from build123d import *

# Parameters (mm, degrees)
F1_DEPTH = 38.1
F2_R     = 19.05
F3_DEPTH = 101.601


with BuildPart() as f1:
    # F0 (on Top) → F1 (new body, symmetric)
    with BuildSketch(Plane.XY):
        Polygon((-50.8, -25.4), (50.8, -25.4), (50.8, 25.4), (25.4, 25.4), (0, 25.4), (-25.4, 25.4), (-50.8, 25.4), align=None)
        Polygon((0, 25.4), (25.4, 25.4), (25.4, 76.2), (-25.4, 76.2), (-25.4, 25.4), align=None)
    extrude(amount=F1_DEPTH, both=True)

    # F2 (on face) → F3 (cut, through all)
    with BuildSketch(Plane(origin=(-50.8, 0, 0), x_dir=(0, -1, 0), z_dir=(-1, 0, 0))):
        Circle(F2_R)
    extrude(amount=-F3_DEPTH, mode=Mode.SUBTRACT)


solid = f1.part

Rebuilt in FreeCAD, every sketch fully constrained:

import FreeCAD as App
import Part
import Sketcher

V = App.Vector
Q = App.Units.Quantity

doc = App.newDocument("Part")
body = doc.addObject("PartDesign::Body", "Body")

sketch1 = body.newObject("Sketcher::SketchObject", "Sketch")
sketch1.AttachmentSupport = (doc.getObject("XY_Plane"), [""])
sketch1.MapMode = "FlatFace"
sketch1.addGeometry(Part.LineSegment(V(-51, -25, 0), V(51, -25, 0)), False)
sketch1.addGeometry(Part.LineSegment(V(51, -25, 0), V(51, 25, 0)), False)
sketch1.addGeometry(Part.LineSegment(V(51, 25, 0), V(25, 25, 0)), False)
sketch1.addGeometry(Part.LineSegment(V(25, 25, 0), V(25, 76, 0)), False)
sketch1.addGeometry(Part.LineSegment(V(25, 76, 0), V(-25, 76, 0)), False)
sketch1.addGeometry(Part.LineSegment(V(-25, 76, 0), V(-25, 25, 0)), False)
sketch1.addGeometry(Part.LineSegment(V(-25, 25, 0), V(-51, 25, 0)), False)
sketch1.addGeometry(Part.LineSegment(V(-51, 25, 0), V(-51, -25, 0)), False)
sketch1.addConstraint(Sketcher.Constraint("Coincident", 0, 2, 1, 1))
sketch1.addConstraint(Sketcher.Constraint("Coincident", 1, 2, 2, 1))
sketch1.addConstraint(Sketcher.Constraint("Coincident", 2, 2, 3, 1))
sketch1.addConstraint(Sketcher.Constraint("Coincident", 3, 2, 4, 1))
sketch1.addConstraint(Sketcher.Constraint("Coincident", 4, 2, 5, 1))
sketch1.addConstraint(Sketcher.Constraint("Coincident", 5, 2, 6, 1))
sketch1.addConstraint(Sketcher.Constraint("Coincident", 6, 2, 7, 1))
sketch1.addConstraint(Sketcher.Constraint("Coincident", 7, 2, 0, 1))
sketch1.addConstraint(Sketcher.Constraint("Horizontal", 0))
sketch1.addConstraint(Sketcher.Constraint("Vertical", 1))
sketch1.addConstraint(Sketcher.Constraint("Horizontal", 2))
sketch1.addConstraint(Sketcher.Constraint("Vertical", 3))
sketch1.addConstraint(Sketcher.Constraint("Horizontal", 4))
sketch1.addConstraint(Sketcher.Constraint("Vertical", 5))
sketch1.addConstraint(Sketcher.Constraint("Horizontal", 6))
sketch1.addConstraint(Sketcher.Constraint("Vertical", 7))
sketch1.addConstraint(Sketcher.Constraint("Symmetric", 0, 2, 6, 2, -1, 1))
sketch1.addConstraint(Sketcher.Constraint("Symmetric", 2, 2, 5, 2, -2))
sketch1.addConstraint(Sketcher.Constraint("Equal", 4, 1))
sketch1.addConstraint(Sketcher.Constraint("Equal", 1, 3))
sketch1.addConstraint(Sketcher.Constraint("DistanceX", 0, 1, 0, 2, Q("4 in")))
sketch1.addConstraint(Sketcher.Constraint("DistanceX", 2, 2, 2, 1, Q("1 in")))
pad1 = body.newObject("PartDesign::Pad", "Pad")
pad1.Profile = sketch1
pad1.Length = Q("3 in")
pad1.Midplane = True

sketch2 = body.newObject("Sketcher::SketchObject", "Sketch001")
sketch2.AttachmentSupport = (doc.getObject("YZ_Plane"), [""])
sketch2.MapMode = "FlatFace"
sketch2.AttachmentOffset = App.Placement(V(0, 0, -2 * 25.4), App.Rotation())
sketch2.addGeometry(Part.Circle(V(0, 0, 0), V(0, 0, 1), 19), False)
sketch2.addConstraint(Sketcher.Constraint("Coincident", 0, 3, -1, 1))
sketch2.addConstraint(Sketcher.Constraint("Diameter", 0, Q("1.5 in")))
pocket1 = body.newObject("PartDesign::Pocket", "Pocket")
pocket1.Profile = sketch2
pocket1.Type = "ThroughAll"
pocket1.Reversed = True

doc.recompute()
